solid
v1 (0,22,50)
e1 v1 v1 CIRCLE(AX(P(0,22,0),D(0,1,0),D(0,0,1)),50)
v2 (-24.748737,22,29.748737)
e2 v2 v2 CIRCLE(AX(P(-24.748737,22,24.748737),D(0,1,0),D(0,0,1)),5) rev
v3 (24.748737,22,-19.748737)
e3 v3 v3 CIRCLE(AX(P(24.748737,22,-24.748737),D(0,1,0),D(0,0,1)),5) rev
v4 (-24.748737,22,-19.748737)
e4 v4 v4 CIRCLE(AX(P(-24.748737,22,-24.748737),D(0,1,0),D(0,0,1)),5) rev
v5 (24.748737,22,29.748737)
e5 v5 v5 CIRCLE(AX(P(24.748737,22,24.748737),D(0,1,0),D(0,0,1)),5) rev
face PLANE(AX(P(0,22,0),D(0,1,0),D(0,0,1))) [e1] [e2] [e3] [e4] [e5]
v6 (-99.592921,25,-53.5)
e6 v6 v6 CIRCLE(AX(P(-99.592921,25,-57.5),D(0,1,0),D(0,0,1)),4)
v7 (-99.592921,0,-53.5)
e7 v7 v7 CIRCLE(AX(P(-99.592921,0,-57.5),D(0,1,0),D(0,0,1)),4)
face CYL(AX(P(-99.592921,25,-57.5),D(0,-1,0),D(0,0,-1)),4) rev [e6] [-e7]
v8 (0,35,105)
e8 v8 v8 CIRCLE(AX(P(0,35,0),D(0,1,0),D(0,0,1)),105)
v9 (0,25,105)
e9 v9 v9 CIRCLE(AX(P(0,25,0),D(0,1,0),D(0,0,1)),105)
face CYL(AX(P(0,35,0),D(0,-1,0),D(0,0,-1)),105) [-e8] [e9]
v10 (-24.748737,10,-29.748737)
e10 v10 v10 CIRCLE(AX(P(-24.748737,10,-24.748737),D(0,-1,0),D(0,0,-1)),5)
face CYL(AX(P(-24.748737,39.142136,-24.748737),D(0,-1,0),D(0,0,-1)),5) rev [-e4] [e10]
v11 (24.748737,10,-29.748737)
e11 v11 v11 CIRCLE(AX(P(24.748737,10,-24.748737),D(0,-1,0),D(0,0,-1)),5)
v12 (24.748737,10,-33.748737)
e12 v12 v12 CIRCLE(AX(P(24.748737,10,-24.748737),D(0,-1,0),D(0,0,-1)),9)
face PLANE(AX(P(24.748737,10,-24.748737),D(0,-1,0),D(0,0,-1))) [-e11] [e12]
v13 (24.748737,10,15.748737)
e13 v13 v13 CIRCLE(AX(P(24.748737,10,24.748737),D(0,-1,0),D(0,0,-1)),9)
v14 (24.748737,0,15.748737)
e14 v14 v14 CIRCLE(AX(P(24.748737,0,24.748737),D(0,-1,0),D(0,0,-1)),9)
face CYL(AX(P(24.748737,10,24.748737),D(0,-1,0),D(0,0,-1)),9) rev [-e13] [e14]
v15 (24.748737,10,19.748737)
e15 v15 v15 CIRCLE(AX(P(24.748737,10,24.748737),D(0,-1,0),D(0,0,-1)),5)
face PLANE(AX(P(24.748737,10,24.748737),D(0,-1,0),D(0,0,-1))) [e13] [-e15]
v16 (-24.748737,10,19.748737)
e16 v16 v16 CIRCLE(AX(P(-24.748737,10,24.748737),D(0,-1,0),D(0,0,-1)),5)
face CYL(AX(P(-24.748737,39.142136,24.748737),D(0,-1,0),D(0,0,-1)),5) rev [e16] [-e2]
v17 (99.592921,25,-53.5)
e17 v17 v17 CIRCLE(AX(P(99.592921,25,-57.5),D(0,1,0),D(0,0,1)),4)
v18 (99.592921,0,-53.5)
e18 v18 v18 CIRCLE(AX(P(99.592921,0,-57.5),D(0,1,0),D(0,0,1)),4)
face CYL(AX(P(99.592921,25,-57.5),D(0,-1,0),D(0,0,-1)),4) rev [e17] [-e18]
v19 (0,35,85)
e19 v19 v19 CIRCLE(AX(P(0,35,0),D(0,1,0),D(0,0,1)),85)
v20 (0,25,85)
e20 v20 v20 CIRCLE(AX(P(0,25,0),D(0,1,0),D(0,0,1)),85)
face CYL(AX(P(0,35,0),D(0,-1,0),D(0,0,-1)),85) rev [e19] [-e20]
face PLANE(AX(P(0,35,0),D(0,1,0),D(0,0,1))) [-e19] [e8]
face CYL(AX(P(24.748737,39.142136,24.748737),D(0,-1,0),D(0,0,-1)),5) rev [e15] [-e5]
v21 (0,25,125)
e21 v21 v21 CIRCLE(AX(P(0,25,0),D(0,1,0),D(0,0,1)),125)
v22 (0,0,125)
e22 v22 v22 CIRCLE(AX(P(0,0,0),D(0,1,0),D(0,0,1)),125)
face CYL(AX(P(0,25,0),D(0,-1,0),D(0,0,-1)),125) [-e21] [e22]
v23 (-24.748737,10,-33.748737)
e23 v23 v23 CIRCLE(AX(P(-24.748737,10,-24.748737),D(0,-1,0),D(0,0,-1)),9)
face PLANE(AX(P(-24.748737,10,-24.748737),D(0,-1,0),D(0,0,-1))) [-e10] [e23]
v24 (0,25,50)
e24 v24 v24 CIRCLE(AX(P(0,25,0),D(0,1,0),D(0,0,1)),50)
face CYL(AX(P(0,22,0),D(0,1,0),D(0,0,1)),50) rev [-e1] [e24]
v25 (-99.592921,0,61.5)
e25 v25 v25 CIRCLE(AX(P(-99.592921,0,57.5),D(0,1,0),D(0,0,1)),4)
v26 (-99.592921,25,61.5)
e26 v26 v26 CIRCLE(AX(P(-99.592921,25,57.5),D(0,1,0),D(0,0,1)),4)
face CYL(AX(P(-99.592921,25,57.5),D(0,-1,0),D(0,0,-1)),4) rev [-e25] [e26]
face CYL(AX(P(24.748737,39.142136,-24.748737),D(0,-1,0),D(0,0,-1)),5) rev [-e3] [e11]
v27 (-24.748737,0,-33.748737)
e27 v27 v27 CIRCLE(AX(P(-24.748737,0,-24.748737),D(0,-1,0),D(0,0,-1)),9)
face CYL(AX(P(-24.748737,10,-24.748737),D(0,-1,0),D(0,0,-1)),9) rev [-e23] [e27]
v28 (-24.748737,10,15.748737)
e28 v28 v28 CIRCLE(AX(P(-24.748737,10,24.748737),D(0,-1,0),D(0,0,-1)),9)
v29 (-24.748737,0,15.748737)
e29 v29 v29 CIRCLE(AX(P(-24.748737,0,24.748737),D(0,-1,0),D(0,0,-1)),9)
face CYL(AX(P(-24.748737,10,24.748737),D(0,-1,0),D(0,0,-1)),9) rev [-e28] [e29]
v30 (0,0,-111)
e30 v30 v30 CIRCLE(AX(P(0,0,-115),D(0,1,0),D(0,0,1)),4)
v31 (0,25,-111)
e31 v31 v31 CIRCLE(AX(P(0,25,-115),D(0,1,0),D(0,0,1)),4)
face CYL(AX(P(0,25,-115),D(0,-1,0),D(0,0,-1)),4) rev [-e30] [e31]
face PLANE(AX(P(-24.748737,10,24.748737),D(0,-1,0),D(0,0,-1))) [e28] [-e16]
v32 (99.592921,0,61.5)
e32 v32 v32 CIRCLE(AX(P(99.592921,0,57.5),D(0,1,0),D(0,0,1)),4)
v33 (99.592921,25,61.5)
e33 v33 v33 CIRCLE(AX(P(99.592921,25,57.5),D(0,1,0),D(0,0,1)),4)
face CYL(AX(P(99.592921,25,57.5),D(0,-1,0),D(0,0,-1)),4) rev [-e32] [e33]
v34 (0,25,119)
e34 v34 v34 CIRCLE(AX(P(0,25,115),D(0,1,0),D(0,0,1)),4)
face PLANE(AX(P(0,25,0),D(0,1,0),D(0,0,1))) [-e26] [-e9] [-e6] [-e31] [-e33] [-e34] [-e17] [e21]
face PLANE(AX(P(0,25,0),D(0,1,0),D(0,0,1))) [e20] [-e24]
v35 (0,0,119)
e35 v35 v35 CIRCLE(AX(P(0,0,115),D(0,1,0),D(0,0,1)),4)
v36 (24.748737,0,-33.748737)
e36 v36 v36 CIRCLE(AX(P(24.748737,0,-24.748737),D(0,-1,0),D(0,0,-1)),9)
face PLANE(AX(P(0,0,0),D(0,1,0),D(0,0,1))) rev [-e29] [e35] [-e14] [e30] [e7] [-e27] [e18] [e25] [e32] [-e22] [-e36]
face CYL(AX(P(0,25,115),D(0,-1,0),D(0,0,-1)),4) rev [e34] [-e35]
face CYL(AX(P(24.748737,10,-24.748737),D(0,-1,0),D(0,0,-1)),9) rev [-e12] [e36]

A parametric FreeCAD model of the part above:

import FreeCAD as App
import Part
import Sketcher
from FreeCAD import Vector
Q = App.Units.Quantity

doc = App.newDocument("Part")
body = doc.addObject("PartDesign::Body", "Body")

# Sketch on XZ plane
sketch1 = body.newObject("Sketcher::SketchObject", "Sketch")
sketch1.AttachmentSupport = (doc.getObject("XZ_Plane"), [""])
sketch1.MapMode = "FlatFace"
sketch1.addGeometry(Part.Circle(Vector(0, 0, 0), Vector(0, 0, 1), 125), False)
sketch1.addGeometry(Part.Circle(Vector(-99.592921, 57.5, 0), Vector(0, 0, 1), 4), False)
sketch1.addGeometry(Part.Circle(Vector(0, 115, 0), Vector(0, 0, 1), 4), False)
sketch1.addGeometry(Part.Circle(Vector(99.592921, 57.5, 0), Vector(0, 0, 1), 4), False)
sketch1.addGeometry(Part.Circle(Vector(-99.592921, -57.5, 0), Vector(0, 0, 1), 4), False)
sketch1.addGeometry(Part.Circle(Vector(99.592921, -57.5, 0), Vector(0, 0, 1), 4), False)
sketch1.addGeometry(Part.Circle(Vector(0, -115, 0), Vector(0, 0, 1), 4), False)
sketch1.addConstraint(Sketcher.Constraint("Coincident", 0, 3, -1, 1))
sketch1.addConstraint(Sketcher.Constraint("Equal", 1, 2))
sketch1.addConstraint(Sketcher.Constraint("Equal", 2, 3))
sketch1.addConstraint(Sketcher.Constraint("Equal", 3, 4))
sketch1.addConstraint(Sketcher.Constraint("Equal", 4, 5))
sketch1.addConstraint(Sketcher.Constraint("Equal", 5, 6))
sketch1.addConstraint(Sketcher.Constraint("Symmetric", 3, 3, 4, 3, -1, 1))
sketch1.addConstraint(Sketcher.Constraint("Symmetric", 1, 3, 5, 3, -1, 1))
sketch1.addConstraint(Sketcher.Constraint("Symmetric", 2, 3, 6, 3, -1, 1))
sketch1.addConstraint(Sketcher.Constraint("Symmetric", 1, 3, 3, 3, -2))
sketch1.addConstraint(Sketcher.Constraint("PointOnObject", 2, 3, -2))
sketch1.addConstraint(Sketcher.Constraint("Diameter", 0, Q("250 mm")))
sketch1.addConstraint(Sketcher.Constraint("Diameter", 1, Q("8 mm")))
sketch1.addConstraint(Sketcher.Constraint("DistanceY", -1, 1, 2, 3, Q("115 mm")))
sketch1.addConstraint(Sketcher.Constraint("DistanceY", 4, 3, 1, 3, Q("115 mm")))
sketch1.addConstraint(Sketcher.Constraint("DistanceX", 1, 3, -1, 1, Q("99.592921 mm")))
pad1 = body.newObject("PartDesign::Pad", "Pad")
pad1.Profile = sketch1
pad1.Length = 25
pad1.Reversed = True

# Sketch on XZ plane
sketch2 = body.newObject("Sketcher::SketchObject", "Sketch001")
sketch2.AttachmentSupport = (doc.getObject("XZ_Plane"), [""])
sketch2.MapMode = "FlatFace"
sketch2.addGeometry(Part.Circle(Vector(-24.748737, 24.748737, 0), Vector(0, 0, 1), 9), False)
sketch2.addGeometry(Part.Circle(Vector(24.748737, 24.748737, 0), Vector(0, 0, 1), 9), False)
sketch2.addGeometry(Part.Circle(Vector(24.748737, -24.748737, 0), Vector(0, 0, 1), 9), False)
sketch2.addGeometry(Part.Circle(Vector(-24.748737, -24.748737, 0), Vector(0, 0, 1), 9), False)
sketch2.addConstraint(Sketcher.Constraint("Equal", 0, 1))
sketch2.addConstraint(Sketcher.Constraint("Equal", 1, 2))
sketch2.addConstraint(Sketcher.Constraint("Equal", 2, 3))
sketch2.addConstraint(Sketcher.Constraint("Symmetric", 0, 3, 2, 3, -1, 1))
sketch2.addConstraint(Sketcher.Constraint("Symmetric", 1, 3, 3, 3, -1, 1))
sketch2.addConstraint(Sketcher.Constraint("Symmetric", 0, 3, 1, 3, -2))
sketch2.addConstraint(Sketcher.Constraint("Diameter", 0, Q("18 mm")))
sketch2.addConstraint(Sketcher.Constraint("DistanceX", 0, 3, -1, 1, Q("24.748737 mm")))
sketch2.addConstraint(Sketcher.Constraint("DistanceY", -1, 1, 0, 3, Q("24.748737 mm")))
pocket1 = body.newObject("PartDesign::Pocket", "Pocket")
pocket1.Profile = sketch2
pocket1.Length = 10

# Sketch on XZ plane
sketch3 = body.newObject("Sketcher::SketchObject", "Sketch002")
sketch3.AttachmentSupport = (doc.getObject("XZ_Plane"), [""])
sketch3.MapMode = "FlatFace"
sketch3.AttachmentOffset = App.Placement(Vector(0, 0, -10), App.Rotation())
sketch3.addGeometry(Part.Circle(Vector(-24.748737, 24.748737, 0), Vector(0, 0, 1), 5), False)
sketch3.addGeometry(Part.Circle(Vector(24.748737, 24.748737, 0), Vector(0, 0, 1), 5), False)
sketch3.addGeometry(Part.Circle(Vector(24.748737, -24.748737, 0), Vector(0, 0, 1), 5), False)
sketch3.addGeometry(Part.Circle(Vector(-24.748737, -24.748737, 0), Vector(0, 0, 1), 5), False)
sketch3.addConstraint(Sketcher.Constraint("Equal", 0, 1))
sketch3.addConstraint(Sketcher.Constraint("Equal", 1, 2))
sketch3.addConstraint(Sketcher.Constraint("Equal", 2, 3))
sketch3.addConstraint(Sketcher.Constraint("Symmetric", 0, 3, 2, 3, -1, 1))
sketch3.addConstraint(Sketcher.Constraint("Symmetric", 1, 3, 3, 3, -1, 1))
sketch3.addConstraint(Sketcher.Constraint("Symmetric", 0, 3, 1, 3, -2))
sketch3.addConstraint(Sketcher.Constraint("Diameter", 0, Q("10 mm")))
sketch3.addConstraint(Sketcher.Constraint("DistanceX", 0, 3, -1, 1, Q("24.748737 mm")))
sketch3.addConstraint(Sketcher.Constraint("DistanceY", -1, 1, 0, 3, Q("24.748737 mm")))
pocket2 = body.newObject("PartDesign::Pocket", "Pocket001")
pocket2.Profile = sketch3
pocket2.Length = 15

# Sketch on XZ plane
sketch4 = body.newObject("Sketcher::SketchObject", "Sketch003")
sketch4.AttachmentSupport = (doc.getObject("XZ_Plane"), [""])
sketch4.MapMode = "FlatFace"
sketch4.AttachmentOffset = App.Placement(Vector(0, 0, -25), App.Rotation())
sketch4.addGeometry(Part.Circle(Vector(0, 0, 0), Vector(0, 0, 1), 50), False)
sketch4.addConstraint(Sketcher.Constraint("Coincident", 0, 3, -1, 1))
sketch4.addConstraint(Sketcher.Constraint("Diameter", 0, Q("100 mm")))
pocket3 = body.newObject("PartDesign::Pocket", "Pocket002")
pocket3.Profile = sketch4
pocket3.Length = 3
pocket3.Reversed = True

# Sketch on XZ plane
sketch5 = body.newObject("Sketcher::SketchObject", "Sketch004")
sketch5.AttachmentSupport = (doc.getObject("XZ_Plane"), [""])
sketch5.MapMode = "FlatFace"
sketch5.AttachmentOffset = App.Placement(Vector(0, 0, -25), App.Rotation())
sketch5.addGeometry(Part.Circle(Vector(0, 0, 0), Vector(0, 0, 1), 105), False)
sketch5.addGeometry(Part.Circle(Vector(0, 0, 0), Vector(0, 0, 1), 85), False)
sketch5.addConstraint(Sketcher.Constraint("Coincident", 0, 3, -1, 1))
sketch5.addConstraint(Sketcher.Constraint("Coincident", 1, 3, -1, 1))
sketch5.addConstraint(Sketcher.Constraint("Diameter", 0, Q("210 mm")))
sketch5.addConstraint(Sketcher.Constraint("Diameter", 1, Q("170 mm")))
pad2 = body.newObject("PartDesign::Pad", "Pad001")
pad2.Profile = sketch5
pad2.Length = 10
pad2.Reversed = True

doc.recompute()
